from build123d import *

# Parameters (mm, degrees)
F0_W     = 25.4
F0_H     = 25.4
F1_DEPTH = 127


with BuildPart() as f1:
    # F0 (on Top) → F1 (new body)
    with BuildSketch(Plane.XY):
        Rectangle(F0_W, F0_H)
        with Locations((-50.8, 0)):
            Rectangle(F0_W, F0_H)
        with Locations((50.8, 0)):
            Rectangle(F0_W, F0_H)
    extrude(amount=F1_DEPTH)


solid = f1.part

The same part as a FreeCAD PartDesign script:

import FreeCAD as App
import Part
import Sketcher

V = App.Vector
Q = App.Units.Quantity


def add_polygon(sketch, points):
    """Adds a closed chain of lines whose ends are joined by coincident constraints."""
    first, n = sketch.GeometryCount, len(points)
    for a, b in zip(points, points[1:] + points[:1]):
        sketch.addGeometry(Part.LineSegment(App.Vector(*a, 0), App.Vector(*b, 0)), False)
    for i in range(n):
        sketch.addConstraint(Sketcher.Constraint("Coincident", first + i, 2, first + (i + 1) % n, 1))

doc = App.newDocument("Part")
body = doc.addObject("PartDesign::Body", "Body")
body.AllowCompound = True

# Sketch on XY plane
sketch1 = body.newObject("Sketcher::SketchObject", "Sketch")
sketch1.AttachmentSupport = (doc.getObject("XY_Plane"), [""])
sketch1.MapMode = "FlatFace"
add_polygon(sketch1, [(-13, 13), (-13, -13), (13, -13), (13, 13)])  # lines 0-3
add_polygon(sketch1, [(-64, 13), (-64, -13), (-38, -13), (-38, 13)])  # lines 4-7
add_polygon(sketch1, [(38, 13), (38, -13), (64, -13), (64, 13)])  # lines 8-11
sketch1.addConstraint(Sketcher.Constraint("Vertical", 0))
sketch1.addConstraint(Sketcher.Constraint("Horizontal", 1))
sketch1.addConstraint(Sketcher.Constraint("Vertical", 2))
sketch1.addConstraint(Sketcher.Constraint("Horizontal", 3))
sketch1.addConstraint(Sketcher.Constraint("Vertical", 4))
sketch1.addConstraint(Sketcher.Constraint("Horizontal", 5))
sketch1.addConstraint(Sketcher.Constraint("Vertical", 6))
sketch1.addConstraint(Sketcher.Constraint("Horizontal", 7))
sketch1.addConstraint(Sketcher.Constraint("Vertical", 8))
sketch1.addConstraint(Sketcher.Constraint("Horizontal", 9))
sketch1.addConstraint(Sketcher.Constraint("Vertical", 10))
sketch1.addConstraint(Sketcher.Constraint("Horizontal", 11))
sketch1.addConstraint(Sketcher.Constraint("Symmetric", 0, 2, 2, 2, -1, 1))
sketch1.addConstraint(Sketcher.Constraint("Symmetric", 6, 2, 8, 2, -1, 1))
sketch1.addConstraint(Sketcher.Constraint("Symmetric", 4, 2, 10, 2, -1, 1))
sketch1.addConstraint(Sketcher.Constraint("Horizontal", 1, 2, 4, 2))
sketch1.addConstraint(Sketcher.Constraint("Horizontal", 3, 2, 6, 2))
sketch1.addConstraint(Sketcher.Constraint("Equal", 3, 5))
sketch1.addConstraint(Sketcher.Constraint("Equal", 11, 0))
sketch1.addConstraint(Sketcher.Constraint("DistanceX", 1, 1, 1, 2, Q("1 in")))
sketch1.addConstraint(Sketcher.Constraint("DistanceX", 4, 2, 0, 2, Q("2 in")))
pad1 = body.newObject("PartDesign::Pad", "Pad")
pad1.Profile = sketch1
pad1.Length = Q("5 in")

doc.recompute()
